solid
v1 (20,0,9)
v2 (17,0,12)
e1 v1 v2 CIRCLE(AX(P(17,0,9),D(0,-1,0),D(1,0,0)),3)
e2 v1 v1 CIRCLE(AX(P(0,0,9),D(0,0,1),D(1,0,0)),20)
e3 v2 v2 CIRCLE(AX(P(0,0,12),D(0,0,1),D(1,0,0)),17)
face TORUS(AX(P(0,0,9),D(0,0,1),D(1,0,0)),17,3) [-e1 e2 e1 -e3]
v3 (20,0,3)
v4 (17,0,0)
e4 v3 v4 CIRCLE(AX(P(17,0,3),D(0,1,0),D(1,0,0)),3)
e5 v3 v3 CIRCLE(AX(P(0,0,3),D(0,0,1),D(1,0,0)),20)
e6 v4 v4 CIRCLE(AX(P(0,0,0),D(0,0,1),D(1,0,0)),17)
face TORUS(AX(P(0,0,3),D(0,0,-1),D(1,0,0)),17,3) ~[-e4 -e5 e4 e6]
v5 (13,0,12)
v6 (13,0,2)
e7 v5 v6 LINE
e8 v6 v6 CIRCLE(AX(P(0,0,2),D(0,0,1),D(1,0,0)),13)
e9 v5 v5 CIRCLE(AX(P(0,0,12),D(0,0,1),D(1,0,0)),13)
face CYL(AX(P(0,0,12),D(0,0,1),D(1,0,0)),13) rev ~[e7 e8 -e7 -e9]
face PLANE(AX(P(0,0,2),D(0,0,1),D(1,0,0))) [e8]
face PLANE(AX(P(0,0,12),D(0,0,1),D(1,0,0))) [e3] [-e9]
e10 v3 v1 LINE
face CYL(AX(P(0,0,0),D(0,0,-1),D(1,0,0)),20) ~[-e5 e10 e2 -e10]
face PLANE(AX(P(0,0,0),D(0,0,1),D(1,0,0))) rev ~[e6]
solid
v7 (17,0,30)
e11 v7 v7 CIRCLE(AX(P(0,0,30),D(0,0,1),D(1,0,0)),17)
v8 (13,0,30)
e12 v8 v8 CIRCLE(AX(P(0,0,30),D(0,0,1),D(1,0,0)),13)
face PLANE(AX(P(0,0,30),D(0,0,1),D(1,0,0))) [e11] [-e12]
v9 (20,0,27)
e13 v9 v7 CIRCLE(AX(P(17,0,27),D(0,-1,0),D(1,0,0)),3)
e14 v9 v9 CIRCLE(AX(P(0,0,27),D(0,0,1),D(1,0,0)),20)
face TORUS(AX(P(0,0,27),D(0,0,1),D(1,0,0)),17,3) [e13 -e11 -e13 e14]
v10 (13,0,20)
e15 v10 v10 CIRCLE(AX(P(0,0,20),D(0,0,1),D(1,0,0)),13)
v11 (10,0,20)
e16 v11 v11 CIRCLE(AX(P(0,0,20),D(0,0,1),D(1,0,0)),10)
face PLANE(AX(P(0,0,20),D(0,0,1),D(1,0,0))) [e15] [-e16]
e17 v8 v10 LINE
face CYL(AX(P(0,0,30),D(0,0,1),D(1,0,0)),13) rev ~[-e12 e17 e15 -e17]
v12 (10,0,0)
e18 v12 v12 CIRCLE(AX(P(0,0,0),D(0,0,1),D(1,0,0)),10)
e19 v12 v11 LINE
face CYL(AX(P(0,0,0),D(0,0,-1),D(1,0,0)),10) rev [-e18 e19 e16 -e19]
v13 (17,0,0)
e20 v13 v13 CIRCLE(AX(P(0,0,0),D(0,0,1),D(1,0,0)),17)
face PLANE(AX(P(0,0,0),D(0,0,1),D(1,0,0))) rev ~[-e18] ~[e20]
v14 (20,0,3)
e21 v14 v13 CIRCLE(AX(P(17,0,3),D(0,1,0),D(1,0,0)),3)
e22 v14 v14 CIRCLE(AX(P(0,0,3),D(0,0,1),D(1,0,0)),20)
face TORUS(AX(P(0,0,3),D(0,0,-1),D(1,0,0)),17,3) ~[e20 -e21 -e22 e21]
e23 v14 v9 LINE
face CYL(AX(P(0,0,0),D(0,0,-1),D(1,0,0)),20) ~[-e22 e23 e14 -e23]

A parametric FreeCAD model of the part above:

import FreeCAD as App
import Part
import Sketcher
from FreeCAD import Vector


def edges_at(feature, points):
    """Names of the edges that pass closest to the given points."""
    edges = feature.Shape.Edges
    near = lambda p: min(range(len(edges)), key=lambda i: edges[i].distToShape(Part.Vertex(*p))[0])
    return sorted({f"Edge{near(p) + 1}" for p in points})

doc = App.newDocument("Part")
body = doc.addObject("PartDesign::Body", "Body")

# Sketch on XY plane
sketch1 = body.newObject("Sketcher::SketchObject", "Sketch")
sketch1.AttachmentSupport = (doc.getObject("XY_Plane"), [""])
sketch1.MapMode = "FlatFace"
sketch1.addGeometry(Part.Circle(Vector(0, 0, 0), Vector(0, 0, 1), 20), False)
sketch1.addConstraint([
    Sketcher.Constraint("Coincident", 0, 3, -1, 1),
    Sketcher.Constraint("Diameter", 0, 40.0),
])
pad1 = body.newObject("PartDesign::Pad", "Pad")
pad1.Profile = sketch1
pad1.Length = 12

# Sketch on XY plane
sketch2 = body.newObject("Sketcher::SketchObject", "Sketch001")
sketch2.AttachmentSupport = (doc.getObject("XY_Plane"), [""])
sketch2.MapMode = "FlatFace"
sketch2.AttachmentOffset = App.Placement(Vector(0, 0, 12), App.Rotation())
sketch2.addGeometry(Part.Circle(Vector(0, 0, 0), Vector(0, 0, 1), 13), False)
sketch2.addConstraint([
    Sketcher.Constraint("Coincident", 0, 3, -1, 1),
    Sketcher.Constraint("Diameter", 0, 26.0),
])
pocket1 = body.newObject("PartDesign::Pocket", "Pocket")
pocket1.Profile = sketch2
pocket1.Length = 10
doc.recompute()

fillet = body.newObject("PartDesign::Fillet", "Fillet")
fillet.Base = (pocket1, edges_at(pocket1, [(20, 0, 6), (-20, 0, 0), (-20, 0, 12)]))
fillet.Radius = 3
body2 = doc.addObject("PartDesign::Body", "Body001")

# Sketch on XY plane
sketch3 = body2.newObject("Sketcher::SketchObject", "Sketch002")
sketch3.AttachmentSupport = (doc.getObject("XY_Plane001"), [""])
sketch3.MapMode = "FlatFace"
sketch3.addGeometry(Part.Circle(Vector(0, 0, 0), Vector(0, 0, 1), 20), False)
sketch3.addConstraint([
    Sketcher.Constraint("Coincident", 0, 3, -1, 1),
    Sketcher.Constraint("Diameter", 0, 40.0),
])
pad2 = body2.newObject("PartDesign::Pad", "Pad001")
pad2.Profile = sketch3
pad2.Length = 30

# Sketch on XY plane
sketch4 = body2.newObject("Sketcher::SketchObject", "Sketch003")
sketch4.AttachmentSupport = (doc.getObject("XY_Plane001"), [""])
sketch4.MapMode = "FlatFace"
sketch4.AttachmentOffset = App.Placement(Vector(0, 0, 30), App.Rotation())
sketch4.addGeometry(Part.Circle(Vector(0, 0, 0), Vector(0, 0, 1), 13), False)
sketch4.addConstraint([
    Sketcher.Constraint("Coincident", 0, 3, -1, 1),
    Sketcher.Constraint("Diameter", 0, 26.0),
])
pocket2 = body2.newObject("PartDesign::Pocket", "Pocket001")
pocket2.Profile = sketch4
pocket2.Length = 10

# Sketch on XY plane
sketch5 = body2.newObject("Sketcher::SketchObject", "Sketch004")
sketch5.AttachmentSupport = (doc.getObject("XY_Plane001"), [""])
sketch5.MapMode = "FlatFace"
sketch5.addGeometry(Part.Circle(Vector(0, 0, 0), Vector(0, 0, 1), 10), False)
sketch5.addConstraint([
    Sketcher.Constraint("Coincident", 0, 3, -1, 1),
    Sketcher.Constraint("Diameter", 0, 20.0),
])
pocket3 = body2.newObject("PartDesign::Pocket", "Pocket002")
pocket3.Profile = sketch5
pocket3.Length = 20
pocket3.Reversed = True
doc.recompute()

fillet2 = body2.newObject("PartDesign::Fillet", "Fillet001")
fillet2.Base = (pocket3, edges_at(pocket3, [(20, 0, 15), (-20, 0, 0), (-20, 0, 30)]))
fillet2.Radius = 3

doc.recompute()
